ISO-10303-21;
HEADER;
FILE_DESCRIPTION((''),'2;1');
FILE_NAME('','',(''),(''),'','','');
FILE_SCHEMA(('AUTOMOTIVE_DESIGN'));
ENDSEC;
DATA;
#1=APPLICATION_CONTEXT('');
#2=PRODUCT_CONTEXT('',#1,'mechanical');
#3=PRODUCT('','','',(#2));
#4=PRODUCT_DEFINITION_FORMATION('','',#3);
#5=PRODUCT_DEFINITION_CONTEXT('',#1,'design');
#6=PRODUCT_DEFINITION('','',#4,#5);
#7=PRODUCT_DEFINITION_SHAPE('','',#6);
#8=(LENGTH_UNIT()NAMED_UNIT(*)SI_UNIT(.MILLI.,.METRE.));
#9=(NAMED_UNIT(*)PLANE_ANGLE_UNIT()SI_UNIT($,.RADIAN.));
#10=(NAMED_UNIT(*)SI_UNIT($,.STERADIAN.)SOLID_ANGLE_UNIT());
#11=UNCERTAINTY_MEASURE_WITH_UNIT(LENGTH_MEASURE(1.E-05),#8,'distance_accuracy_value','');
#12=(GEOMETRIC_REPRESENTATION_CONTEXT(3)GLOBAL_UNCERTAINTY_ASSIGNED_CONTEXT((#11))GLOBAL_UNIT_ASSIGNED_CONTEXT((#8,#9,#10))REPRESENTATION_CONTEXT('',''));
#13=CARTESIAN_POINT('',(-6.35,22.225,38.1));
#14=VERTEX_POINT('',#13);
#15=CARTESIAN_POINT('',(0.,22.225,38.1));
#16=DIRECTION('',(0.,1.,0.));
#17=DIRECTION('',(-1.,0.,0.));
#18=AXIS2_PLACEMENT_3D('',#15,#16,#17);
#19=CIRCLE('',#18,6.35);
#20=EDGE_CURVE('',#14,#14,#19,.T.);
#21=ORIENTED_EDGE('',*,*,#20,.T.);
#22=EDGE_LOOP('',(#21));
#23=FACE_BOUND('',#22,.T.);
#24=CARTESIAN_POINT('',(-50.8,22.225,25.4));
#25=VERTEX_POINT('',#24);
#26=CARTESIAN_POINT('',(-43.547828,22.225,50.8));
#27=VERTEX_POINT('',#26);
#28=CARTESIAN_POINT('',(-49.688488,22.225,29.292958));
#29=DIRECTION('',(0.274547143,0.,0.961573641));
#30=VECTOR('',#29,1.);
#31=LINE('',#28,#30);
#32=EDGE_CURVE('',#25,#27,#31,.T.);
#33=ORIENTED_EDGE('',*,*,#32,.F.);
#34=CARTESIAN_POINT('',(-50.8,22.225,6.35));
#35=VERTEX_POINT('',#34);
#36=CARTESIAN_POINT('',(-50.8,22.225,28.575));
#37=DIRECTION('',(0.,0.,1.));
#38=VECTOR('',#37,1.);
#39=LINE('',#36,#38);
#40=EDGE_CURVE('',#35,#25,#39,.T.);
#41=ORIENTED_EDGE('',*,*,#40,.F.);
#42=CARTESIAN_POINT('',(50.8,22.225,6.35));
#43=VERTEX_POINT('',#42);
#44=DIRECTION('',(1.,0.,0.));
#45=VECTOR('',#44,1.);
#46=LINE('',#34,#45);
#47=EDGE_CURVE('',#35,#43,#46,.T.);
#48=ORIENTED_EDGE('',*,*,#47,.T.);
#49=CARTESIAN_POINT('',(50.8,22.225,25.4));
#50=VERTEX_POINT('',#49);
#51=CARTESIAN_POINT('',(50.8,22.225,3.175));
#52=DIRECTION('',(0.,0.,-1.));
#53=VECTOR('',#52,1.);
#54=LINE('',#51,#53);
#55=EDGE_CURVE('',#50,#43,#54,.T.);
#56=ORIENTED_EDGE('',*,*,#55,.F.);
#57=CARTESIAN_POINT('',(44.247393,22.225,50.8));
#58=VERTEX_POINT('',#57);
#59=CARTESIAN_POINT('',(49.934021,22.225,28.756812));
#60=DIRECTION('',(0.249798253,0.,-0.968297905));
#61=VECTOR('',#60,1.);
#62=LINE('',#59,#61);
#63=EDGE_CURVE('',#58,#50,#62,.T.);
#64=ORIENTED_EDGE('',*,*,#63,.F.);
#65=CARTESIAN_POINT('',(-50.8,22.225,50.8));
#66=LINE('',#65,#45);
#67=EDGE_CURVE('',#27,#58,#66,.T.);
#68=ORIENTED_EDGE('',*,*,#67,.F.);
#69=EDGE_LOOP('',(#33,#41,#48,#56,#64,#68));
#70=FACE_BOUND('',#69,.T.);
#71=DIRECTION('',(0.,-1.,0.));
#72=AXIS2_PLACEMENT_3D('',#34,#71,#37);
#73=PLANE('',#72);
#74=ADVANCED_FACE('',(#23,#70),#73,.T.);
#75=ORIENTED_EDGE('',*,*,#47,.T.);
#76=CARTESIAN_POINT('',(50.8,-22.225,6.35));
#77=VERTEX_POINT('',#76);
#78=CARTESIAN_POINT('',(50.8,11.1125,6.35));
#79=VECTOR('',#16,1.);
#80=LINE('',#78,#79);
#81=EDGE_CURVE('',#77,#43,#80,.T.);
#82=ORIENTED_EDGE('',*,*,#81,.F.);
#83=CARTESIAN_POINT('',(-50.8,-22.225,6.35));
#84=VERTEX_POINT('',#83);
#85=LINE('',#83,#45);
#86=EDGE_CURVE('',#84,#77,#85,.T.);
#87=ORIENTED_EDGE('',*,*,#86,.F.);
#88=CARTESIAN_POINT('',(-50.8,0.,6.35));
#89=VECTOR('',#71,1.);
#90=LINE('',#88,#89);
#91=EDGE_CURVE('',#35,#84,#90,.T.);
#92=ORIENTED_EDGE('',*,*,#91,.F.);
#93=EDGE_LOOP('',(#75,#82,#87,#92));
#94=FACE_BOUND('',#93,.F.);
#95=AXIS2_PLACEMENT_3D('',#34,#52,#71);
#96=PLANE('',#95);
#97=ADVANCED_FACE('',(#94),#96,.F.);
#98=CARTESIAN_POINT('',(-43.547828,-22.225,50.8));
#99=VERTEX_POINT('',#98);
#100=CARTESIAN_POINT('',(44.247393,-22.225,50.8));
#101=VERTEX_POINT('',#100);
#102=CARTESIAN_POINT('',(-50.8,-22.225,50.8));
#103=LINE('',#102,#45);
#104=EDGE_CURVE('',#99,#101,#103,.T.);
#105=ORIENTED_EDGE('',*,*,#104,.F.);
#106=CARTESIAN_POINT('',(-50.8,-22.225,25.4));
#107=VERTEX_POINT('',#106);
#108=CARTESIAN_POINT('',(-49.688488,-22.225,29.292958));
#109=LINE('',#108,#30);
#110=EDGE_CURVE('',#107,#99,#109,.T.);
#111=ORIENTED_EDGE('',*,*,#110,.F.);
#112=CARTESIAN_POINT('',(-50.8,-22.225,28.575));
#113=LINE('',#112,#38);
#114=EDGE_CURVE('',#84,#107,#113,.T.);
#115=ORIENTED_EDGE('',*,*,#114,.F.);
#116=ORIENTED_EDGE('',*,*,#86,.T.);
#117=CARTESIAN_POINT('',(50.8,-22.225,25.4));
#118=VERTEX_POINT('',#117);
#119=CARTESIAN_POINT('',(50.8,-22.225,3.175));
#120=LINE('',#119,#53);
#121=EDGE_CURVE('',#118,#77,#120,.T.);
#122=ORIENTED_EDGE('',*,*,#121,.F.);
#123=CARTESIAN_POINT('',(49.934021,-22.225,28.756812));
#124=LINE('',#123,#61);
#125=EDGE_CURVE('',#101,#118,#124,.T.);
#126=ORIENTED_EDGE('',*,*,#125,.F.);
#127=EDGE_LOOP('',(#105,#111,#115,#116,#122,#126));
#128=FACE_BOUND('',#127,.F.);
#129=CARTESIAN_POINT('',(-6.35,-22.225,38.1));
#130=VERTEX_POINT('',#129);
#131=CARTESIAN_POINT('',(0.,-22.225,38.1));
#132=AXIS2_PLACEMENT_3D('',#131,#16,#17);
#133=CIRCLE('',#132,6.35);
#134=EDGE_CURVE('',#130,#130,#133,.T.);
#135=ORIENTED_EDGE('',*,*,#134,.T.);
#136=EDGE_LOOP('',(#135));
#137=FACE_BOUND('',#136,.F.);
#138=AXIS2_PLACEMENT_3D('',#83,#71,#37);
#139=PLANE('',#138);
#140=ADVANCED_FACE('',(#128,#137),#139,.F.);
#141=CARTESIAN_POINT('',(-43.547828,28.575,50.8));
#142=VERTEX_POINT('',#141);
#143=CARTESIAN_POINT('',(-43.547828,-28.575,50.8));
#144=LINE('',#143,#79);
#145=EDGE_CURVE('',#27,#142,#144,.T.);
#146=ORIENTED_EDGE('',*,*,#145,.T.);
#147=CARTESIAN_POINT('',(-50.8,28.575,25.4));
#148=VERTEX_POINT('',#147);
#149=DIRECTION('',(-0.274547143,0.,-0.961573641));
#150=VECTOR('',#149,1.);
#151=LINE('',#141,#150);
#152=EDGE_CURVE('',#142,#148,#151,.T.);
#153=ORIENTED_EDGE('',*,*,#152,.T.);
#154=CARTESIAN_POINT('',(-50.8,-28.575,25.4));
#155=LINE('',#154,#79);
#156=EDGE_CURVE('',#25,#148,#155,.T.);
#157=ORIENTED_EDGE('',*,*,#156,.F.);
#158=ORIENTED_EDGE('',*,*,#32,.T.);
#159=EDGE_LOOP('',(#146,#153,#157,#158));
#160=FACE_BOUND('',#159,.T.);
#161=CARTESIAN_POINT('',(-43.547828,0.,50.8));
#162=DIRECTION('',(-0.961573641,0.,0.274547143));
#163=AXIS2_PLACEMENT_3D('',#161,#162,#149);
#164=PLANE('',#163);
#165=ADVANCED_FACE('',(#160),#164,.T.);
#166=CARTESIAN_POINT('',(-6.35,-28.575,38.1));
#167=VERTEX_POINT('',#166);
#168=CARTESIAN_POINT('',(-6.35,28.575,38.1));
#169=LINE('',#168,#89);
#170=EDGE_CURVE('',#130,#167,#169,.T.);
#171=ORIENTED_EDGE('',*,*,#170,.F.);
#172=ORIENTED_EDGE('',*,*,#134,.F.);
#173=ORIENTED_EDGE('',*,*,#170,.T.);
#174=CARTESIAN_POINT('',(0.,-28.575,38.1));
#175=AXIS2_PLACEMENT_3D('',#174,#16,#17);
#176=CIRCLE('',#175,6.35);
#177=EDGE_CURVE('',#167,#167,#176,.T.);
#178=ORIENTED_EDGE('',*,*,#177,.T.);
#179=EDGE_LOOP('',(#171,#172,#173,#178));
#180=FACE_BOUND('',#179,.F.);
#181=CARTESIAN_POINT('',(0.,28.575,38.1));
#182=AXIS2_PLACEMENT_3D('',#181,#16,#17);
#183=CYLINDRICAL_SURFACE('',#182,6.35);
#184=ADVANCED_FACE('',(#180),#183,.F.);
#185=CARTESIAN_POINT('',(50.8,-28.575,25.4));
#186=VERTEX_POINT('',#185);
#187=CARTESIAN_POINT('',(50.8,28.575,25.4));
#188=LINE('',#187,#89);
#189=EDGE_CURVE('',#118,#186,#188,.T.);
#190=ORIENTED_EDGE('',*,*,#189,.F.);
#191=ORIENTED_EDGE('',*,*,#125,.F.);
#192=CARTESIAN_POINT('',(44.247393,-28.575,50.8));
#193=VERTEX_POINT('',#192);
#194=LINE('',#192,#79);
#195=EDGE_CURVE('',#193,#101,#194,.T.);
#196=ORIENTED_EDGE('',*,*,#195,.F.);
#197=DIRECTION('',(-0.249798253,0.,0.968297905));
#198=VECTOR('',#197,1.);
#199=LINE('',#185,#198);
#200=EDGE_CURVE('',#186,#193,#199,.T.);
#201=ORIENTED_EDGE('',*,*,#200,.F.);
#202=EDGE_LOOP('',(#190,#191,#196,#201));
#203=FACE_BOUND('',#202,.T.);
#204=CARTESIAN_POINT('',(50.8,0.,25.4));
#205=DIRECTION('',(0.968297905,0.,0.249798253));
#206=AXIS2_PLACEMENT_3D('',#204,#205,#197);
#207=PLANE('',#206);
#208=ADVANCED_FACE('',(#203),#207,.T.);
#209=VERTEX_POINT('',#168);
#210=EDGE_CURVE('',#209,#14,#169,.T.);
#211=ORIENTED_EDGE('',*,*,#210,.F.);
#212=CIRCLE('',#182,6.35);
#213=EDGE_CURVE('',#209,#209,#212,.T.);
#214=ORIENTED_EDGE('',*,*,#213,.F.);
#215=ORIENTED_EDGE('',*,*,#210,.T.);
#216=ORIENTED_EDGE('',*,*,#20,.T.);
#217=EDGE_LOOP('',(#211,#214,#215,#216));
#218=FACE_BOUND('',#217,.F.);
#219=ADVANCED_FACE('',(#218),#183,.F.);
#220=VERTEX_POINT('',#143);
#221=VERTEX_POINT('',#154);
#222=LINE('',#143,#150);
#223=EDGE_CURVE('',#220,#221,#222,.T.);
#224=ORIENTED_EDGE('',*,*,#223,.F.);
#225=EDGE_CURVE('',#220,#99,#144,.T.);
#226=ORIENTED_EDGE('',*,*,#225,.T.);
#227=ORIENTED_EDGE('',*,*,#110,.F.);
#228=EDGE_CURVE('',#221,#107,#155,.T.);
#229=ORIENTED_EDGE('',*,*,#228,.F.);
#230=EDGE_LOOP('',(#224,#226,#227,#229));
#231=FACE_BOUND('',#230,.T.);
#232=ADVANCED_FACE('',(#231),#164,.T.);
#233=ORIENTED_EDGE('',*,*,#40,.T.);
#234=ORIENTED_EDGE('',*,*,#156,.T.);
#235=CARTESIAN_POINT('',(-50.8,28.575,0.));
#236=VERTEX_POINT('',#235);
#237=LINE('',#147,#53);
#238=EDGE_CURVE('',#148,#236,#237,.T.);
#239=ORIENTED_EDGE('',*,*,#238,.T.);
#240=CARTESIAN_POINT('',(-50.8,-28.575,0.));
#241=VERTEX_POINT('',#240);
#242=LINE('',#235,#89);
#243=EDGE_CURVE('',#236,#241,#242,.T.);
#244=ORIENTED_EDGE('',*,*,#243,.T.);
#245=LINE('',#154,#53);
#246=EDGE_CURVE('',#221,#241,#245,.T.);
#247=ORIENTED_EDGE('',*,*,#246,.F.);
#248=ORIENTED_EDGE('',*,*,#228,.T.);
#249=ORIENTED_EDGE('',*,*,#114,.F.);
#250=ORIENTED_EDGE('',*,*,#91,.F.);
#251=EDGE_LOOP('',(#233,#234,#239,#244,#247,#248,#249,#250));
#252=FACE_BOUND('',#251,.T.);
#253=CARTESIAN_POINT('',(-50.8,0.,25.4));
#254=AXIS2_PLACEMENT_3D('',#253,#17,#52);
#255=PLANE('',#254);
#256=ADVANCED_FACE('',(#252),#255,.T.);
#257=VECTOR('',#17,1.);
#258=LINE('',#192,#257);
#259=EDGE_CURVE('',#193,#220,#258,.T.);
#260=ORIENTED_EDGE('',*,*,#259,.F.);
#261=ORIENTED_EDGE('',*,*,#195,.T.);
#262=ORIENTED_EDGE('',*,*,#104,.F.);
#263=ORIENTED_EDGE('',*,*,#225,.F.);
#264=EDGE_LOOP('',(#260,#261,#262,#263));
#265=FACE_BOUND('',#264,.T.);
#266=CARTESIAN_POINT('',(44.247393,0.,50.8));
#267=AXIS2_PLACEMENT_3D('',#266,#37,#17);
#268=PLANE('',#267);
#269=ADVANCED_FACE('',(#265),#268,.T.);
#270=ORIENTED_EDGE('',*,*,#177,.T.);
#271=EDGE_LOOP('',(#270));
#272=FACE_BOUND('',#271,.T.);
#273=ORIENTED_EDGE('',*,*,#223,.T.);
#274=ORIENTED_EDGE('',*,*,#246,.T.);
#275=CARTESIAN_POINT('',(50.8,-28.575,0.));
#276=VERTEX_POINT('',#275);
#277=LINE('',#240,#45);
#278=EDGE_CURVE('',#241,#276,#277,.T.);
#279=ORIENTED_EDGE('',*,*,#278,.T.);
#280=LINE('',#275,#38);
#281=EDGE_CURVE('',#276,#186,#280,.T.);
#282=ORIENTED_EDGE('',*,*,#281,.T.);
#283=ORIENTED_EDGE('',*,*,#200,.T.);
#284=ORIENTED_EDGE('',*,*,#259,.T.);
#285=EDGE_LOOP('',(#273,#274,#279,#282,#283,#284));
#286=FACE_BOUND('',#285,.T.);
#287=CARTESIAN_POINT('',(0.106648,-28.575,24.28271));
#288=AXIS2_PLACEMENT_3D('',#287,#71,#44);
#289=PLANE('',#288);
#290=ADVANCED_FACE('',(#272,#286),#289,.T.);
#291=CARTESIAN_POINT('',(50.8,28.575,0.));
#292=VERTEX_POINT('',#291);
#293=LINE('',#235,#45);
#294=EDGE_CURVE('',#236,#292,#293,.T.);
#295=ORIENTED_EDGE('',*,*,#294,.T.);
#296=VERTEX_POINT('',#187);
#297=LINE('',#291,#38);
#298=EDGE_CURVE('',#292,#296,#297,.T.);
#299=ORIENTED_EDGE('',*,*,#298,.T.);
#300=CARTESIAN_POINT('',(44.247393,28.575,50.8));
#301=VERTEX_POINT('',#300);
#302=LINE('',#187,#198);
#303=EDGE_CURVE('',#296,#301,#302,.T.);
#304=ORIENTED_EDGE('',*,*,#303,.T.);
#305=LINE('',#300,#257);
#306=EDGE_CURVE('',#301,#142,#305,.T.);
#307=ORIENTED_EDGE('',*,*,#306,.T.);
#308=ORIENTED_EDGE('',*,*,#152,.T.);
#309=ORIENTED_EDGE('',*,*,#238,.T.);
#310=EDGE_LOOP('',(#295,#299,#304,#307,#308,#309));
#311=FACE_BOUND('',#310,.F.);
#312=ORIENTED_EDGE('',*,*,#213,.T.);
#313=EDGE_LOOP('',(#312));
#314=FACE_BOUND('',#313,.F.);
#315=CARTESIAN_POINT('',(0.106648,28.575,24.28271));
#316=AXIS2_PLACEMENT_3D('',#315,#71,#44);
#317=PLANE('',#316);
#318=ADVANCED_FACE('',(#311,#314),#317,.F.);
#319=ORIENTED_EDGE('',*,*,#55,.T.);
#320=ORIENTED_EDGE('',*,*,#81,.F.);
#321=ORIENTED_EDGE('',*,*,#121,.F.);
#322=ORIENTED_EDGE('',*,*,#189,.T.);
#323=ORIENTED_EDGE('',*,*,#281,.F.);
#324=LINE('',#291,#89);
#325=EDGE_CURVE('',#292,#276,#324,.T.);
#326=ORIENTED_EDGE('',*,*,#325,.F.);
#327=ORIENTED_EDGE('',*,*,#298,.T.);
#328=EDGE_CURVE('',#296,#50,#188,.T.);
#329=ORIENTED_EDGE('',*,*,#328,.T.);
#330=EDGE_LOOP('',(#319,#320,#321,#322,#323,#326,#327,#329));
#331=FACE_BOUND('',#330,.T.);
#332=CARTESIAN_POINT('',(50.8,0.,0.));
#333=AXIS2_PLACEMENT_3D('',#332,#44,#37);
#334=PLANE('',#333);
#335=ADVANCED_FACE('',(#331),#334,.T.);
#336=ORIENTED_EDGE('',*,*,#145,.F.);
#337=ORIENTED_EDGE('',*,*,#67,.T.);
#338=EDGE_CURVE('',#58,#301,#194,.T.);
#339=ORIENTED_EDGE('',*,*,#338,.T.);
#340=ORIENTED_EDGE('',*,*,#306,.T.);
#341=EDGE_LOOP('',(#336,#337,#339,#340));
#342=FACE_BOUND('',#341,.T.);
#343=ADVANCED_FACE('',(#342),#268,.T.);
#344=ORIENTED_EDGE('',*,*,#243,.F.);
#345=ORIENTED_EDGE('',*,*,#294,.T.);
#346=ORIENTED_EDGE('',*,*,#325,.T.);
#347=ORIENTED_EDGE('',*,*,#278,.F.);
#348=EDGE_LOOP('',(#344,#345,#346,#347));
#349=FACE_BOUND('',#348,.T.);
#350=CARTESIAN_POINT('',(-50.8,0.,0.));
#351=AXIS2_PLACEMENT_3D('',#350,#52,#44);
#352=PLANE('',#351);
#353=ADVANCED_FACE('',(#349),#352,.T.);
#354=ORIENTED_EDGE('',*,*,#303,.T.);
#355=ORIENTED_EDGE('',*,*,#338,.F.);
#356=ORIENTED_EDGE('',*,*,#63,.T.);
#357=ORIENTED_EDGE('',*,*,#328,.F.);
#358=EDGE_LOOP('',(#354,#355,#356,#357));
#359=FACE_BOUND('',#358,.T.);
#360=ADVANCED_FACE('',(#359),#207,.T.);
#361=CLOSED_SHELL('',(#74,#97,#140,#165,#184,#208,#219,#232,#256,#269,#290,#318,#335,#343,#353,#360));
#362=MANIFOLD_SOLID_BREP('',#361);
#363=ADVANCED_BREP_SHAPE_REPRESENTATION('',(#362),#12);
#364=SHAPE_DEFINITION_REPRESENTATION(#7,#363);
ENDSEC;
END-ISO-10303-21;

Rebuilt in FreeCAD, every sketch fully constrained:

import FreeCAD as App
import Part
import Sketcher
Q = App.Units.Quantity

doc = App.newDocument("Part")
params = doc.addObject("Spreadsheet::Sheet", "Params")
for row, (alias, value) in enumerate([
    ("sketch1_width", "4 in"),
    ("sketch1_height", "1 in"),
    ("pad1_length", "2.25 in"),
    ("sketch2_width", "1.75 in"),
    ("pocket1_length", "5 in"),
    ("sketch3_diameter", "0.5 in"),
], start=1):
    params.set(f"A{row}", alias)
    params.set(f"B{row}", "=" + value)
    params.setAlias(f"B{row}", alias)

body = doc.addObject("PartDesign::Body", "Body")

# Sketch on XZ plane
sketch1 = doc.addObject("Sketcher::SketchObject", "Sketch")
body.addObject(sketch1)
sketch1.AttachmentSupport = (doc.XZ_Plane, [""])
sketch1.MapMode = "FlatFace"
sketch1.addGeometry(Part.LineSegment(App.Vector(-51, 25, 0), App.Vector(-51, 0, 0)), False)
sketch1.addGeometry(Part.LineSegment(App.Vector(-51, 0, 0), App.Vector(51, 0, 0)), False)
sketch1.addGeometry(Part.LineSegment(App.Vector(51, 0, 0), App.Vector(51, 25, 0)), False)
sketch1.addGeometry(Part.LineSegment(App.Vector(51, 25, 0), App.Vector(44, 51, 0)), False)
sketch1.addGeometry(Part.LineSegment(App.Vector(44, 51, 0), App.Vector(-44, 51, 0)), False)
sketch1.addGeometry(Part.LineSegment(App.Vector(-44, 51, 0), App.Vector(-51, 25, 0)), False)
sketch1.addConstraint(Sketcher.Constraint("Coincident", 0, 2, 1, 1))
sketch1.addConstraint(Sketcher.Constraint("Coincident", 1, 2, 2, 1))
sketch1.addConstraint(Sketcher.Constraint("Coincident", 2, 2, 3, 1))
sketch1.addConstraint(Sketcher.Constraint("Coincident", 3, 2, 4, 1))
sketch1.addConstraint(Sketcher.Constraint("Coincident", 4, 2, 5, 1))
sketch1.addConstraint(Sketcher.Constraint("Coincident", 5, 2, 0, 1))
sketch1.addConstraint(Sketcher.Constraint("Vertical", 0))
sketch1.addConstraint(Sketcher.Constraint("Horizontal", 1))
sketch1.addConstraint(Sketcher.Constraint("Vertical", 2))
sketch1.addConstraint(Sketcher.Constraint("Horizontal", 4))
sketch1.addConstraint(Sketcher.Constraint("Symmetric", 0, 2, 1, 2, -1, 1))
sketch1.addConstraint(Sketcher.Constraint("Horizontal", 2, 2, 5, 2))
sketch1.addConstraint(Sketcher.Constraint("DistanceX", 1, 1, 1, 2, Q("4 in")))
sketch1.addConstraint(Sketcher.Constraint("DistanceY", 0, 2, 0, 1, Q("1 in")))
sketch1.addConstraint(Sketcher.Constraint("DistanceY", -1, 1, 3, 2, Q("2 in")))
sketch1.addConstraint(Sketcher.Constraint("DistanceX", 4, 2, 4, 1, 87.795221))
sketch1.addConstraint(Sketcher.Constraint("DistanceX", 4, 2, -1, 1, 43.547828))
sketch1.setExpression("Constraints[12]", "Params.sketch1_width")
sketch1.setExpression("Constraints[13]", "Params.sketch1_height")
pad1 = doc.addObject("PartDesign::Pad", "Pad")
body.addObject(pad1)
pad1.Profile = sketch1
pad1.setExpression("Length", "Params.pad1_length")
pad1.Midplane = True

# Sketch on YZ plane
sketch2 = doc.addObject("Sketcher::SketchObject", "Sketch001")
body.addObject(sketch2)
sketch2.AttachmentSupport = (doc.YZ_Plane, [""])
sketch2.MapMode = "FlatFace"
sketch2.AttachmentOffset = App.Placement(App.Vector(0, 0, -2 * 25.4), App.Rotation())
sketch2.addGeometry(Part.LineSegment(App.Vector(22, 51, 0), App.Vector(22, 6, 0)), False)
sketch2.addGeometry(Part.LineSegment(App.Vector(22, 6, 0), App.Vector(-22, 6, 0)), False)
sketch2.addGeometry(Part.LineSegment(App.Vector(-22, 6, 0), App.Vector(-22, 51, 0)), False)
sketch2.addGeometry(Part.LineSegment(App.Vector(-22, 51, 0), App.Vector(22, 51, 0)), False)
sketch2.addConstraint(Sketcher.Constraint("Coincident", 0, 2, 1, 1))
sketch2.addConstraint(Sketcher.Constraint("Coincident", 1, 2, 2, 1))
sketch2.addConstraint(Sketcher.Constraint("Coincident", 2, 2, 3, 1))
sketch2.addConstraint(Sketcher.Constraint("Coincident", 3, 2, 0, 1))
sketch2.addConstraint(Sketcher.Constraint("Vertical", 0))
sketch2.addConstraint(Sketcher.Constraint("Horizontal", 1))
sketch2.addConstraint(Sketcher.Constraint("Vertical", 2))
sketch2.addConstraint(Sketcher.Constraint("Horizontal", 3))
sketch2.addConstraint(Sketcher.Constraint("Equal", 3, 0))
sketch2.addConstraint(Sketcher.Constraint("DistanceY", -1, 1, 2, 2, Q("2 in")))
sketch2.addConstraint(Sketcher.Constraint("DistanceX", 1, 2, 1, 1, Q("1.75 in")))
sketch2.addConstraint(Sketcher.Constraint("DistanceX", -1, 1, 0, 2, Q("0.875 in")))
sketch2.setExpression("Constraints[10]", "Params.sketch2_width")
pocket1 = doc.addObject("PartDesign::Pocket", "Pocket")
body.addObject(pocket1)
pocket1.Profile = sketch2
pocket1.setExpression("Length", "Params.pocket1_length")
pocket1.Reversed = True

# Sketch on XZ plane
sketch3 = doc.addObject("Sketcher::SketchObject", "Sketch002")
body.addObject(sketch3)
sketch3.AttachmentSupport = (doc.XZ_Plane, [""])
sketch3.MapMode = "FlatFace"
sketch3.AttachmentOffset = App.Placement(App.Vector(0, 0, -1.125 * 25.4), App.Rotation())
sketch3.addGeometry(Part.Circle(App.Vector(0, 38, 0), App.Vector(0, 0, 1), 6), False)
sketch3.addConstraint(Sketcher.Constraint("PointOnObject", 0, 3, -2))
sketch3.addConstraint(Sketcher.Constraint("Diameter", 0, Q("0.5 in")))
sketch3.addConstraint(Sketcher.Constraint("DistanceY", -1, 1, 0, 3, Q("1.5 in")))
sketch3.setExpression("Constraints[1]", "Params.sketch3_diameter")
pocket2 = doc.addObject("PartDesign::Pocket", "Pocket001")
body.addObject(pocket2)
pocket2.Profile = sketch3
pocket2.Type = "ThroughAll"
pocket2.Reversed = True

doc.recompute()
